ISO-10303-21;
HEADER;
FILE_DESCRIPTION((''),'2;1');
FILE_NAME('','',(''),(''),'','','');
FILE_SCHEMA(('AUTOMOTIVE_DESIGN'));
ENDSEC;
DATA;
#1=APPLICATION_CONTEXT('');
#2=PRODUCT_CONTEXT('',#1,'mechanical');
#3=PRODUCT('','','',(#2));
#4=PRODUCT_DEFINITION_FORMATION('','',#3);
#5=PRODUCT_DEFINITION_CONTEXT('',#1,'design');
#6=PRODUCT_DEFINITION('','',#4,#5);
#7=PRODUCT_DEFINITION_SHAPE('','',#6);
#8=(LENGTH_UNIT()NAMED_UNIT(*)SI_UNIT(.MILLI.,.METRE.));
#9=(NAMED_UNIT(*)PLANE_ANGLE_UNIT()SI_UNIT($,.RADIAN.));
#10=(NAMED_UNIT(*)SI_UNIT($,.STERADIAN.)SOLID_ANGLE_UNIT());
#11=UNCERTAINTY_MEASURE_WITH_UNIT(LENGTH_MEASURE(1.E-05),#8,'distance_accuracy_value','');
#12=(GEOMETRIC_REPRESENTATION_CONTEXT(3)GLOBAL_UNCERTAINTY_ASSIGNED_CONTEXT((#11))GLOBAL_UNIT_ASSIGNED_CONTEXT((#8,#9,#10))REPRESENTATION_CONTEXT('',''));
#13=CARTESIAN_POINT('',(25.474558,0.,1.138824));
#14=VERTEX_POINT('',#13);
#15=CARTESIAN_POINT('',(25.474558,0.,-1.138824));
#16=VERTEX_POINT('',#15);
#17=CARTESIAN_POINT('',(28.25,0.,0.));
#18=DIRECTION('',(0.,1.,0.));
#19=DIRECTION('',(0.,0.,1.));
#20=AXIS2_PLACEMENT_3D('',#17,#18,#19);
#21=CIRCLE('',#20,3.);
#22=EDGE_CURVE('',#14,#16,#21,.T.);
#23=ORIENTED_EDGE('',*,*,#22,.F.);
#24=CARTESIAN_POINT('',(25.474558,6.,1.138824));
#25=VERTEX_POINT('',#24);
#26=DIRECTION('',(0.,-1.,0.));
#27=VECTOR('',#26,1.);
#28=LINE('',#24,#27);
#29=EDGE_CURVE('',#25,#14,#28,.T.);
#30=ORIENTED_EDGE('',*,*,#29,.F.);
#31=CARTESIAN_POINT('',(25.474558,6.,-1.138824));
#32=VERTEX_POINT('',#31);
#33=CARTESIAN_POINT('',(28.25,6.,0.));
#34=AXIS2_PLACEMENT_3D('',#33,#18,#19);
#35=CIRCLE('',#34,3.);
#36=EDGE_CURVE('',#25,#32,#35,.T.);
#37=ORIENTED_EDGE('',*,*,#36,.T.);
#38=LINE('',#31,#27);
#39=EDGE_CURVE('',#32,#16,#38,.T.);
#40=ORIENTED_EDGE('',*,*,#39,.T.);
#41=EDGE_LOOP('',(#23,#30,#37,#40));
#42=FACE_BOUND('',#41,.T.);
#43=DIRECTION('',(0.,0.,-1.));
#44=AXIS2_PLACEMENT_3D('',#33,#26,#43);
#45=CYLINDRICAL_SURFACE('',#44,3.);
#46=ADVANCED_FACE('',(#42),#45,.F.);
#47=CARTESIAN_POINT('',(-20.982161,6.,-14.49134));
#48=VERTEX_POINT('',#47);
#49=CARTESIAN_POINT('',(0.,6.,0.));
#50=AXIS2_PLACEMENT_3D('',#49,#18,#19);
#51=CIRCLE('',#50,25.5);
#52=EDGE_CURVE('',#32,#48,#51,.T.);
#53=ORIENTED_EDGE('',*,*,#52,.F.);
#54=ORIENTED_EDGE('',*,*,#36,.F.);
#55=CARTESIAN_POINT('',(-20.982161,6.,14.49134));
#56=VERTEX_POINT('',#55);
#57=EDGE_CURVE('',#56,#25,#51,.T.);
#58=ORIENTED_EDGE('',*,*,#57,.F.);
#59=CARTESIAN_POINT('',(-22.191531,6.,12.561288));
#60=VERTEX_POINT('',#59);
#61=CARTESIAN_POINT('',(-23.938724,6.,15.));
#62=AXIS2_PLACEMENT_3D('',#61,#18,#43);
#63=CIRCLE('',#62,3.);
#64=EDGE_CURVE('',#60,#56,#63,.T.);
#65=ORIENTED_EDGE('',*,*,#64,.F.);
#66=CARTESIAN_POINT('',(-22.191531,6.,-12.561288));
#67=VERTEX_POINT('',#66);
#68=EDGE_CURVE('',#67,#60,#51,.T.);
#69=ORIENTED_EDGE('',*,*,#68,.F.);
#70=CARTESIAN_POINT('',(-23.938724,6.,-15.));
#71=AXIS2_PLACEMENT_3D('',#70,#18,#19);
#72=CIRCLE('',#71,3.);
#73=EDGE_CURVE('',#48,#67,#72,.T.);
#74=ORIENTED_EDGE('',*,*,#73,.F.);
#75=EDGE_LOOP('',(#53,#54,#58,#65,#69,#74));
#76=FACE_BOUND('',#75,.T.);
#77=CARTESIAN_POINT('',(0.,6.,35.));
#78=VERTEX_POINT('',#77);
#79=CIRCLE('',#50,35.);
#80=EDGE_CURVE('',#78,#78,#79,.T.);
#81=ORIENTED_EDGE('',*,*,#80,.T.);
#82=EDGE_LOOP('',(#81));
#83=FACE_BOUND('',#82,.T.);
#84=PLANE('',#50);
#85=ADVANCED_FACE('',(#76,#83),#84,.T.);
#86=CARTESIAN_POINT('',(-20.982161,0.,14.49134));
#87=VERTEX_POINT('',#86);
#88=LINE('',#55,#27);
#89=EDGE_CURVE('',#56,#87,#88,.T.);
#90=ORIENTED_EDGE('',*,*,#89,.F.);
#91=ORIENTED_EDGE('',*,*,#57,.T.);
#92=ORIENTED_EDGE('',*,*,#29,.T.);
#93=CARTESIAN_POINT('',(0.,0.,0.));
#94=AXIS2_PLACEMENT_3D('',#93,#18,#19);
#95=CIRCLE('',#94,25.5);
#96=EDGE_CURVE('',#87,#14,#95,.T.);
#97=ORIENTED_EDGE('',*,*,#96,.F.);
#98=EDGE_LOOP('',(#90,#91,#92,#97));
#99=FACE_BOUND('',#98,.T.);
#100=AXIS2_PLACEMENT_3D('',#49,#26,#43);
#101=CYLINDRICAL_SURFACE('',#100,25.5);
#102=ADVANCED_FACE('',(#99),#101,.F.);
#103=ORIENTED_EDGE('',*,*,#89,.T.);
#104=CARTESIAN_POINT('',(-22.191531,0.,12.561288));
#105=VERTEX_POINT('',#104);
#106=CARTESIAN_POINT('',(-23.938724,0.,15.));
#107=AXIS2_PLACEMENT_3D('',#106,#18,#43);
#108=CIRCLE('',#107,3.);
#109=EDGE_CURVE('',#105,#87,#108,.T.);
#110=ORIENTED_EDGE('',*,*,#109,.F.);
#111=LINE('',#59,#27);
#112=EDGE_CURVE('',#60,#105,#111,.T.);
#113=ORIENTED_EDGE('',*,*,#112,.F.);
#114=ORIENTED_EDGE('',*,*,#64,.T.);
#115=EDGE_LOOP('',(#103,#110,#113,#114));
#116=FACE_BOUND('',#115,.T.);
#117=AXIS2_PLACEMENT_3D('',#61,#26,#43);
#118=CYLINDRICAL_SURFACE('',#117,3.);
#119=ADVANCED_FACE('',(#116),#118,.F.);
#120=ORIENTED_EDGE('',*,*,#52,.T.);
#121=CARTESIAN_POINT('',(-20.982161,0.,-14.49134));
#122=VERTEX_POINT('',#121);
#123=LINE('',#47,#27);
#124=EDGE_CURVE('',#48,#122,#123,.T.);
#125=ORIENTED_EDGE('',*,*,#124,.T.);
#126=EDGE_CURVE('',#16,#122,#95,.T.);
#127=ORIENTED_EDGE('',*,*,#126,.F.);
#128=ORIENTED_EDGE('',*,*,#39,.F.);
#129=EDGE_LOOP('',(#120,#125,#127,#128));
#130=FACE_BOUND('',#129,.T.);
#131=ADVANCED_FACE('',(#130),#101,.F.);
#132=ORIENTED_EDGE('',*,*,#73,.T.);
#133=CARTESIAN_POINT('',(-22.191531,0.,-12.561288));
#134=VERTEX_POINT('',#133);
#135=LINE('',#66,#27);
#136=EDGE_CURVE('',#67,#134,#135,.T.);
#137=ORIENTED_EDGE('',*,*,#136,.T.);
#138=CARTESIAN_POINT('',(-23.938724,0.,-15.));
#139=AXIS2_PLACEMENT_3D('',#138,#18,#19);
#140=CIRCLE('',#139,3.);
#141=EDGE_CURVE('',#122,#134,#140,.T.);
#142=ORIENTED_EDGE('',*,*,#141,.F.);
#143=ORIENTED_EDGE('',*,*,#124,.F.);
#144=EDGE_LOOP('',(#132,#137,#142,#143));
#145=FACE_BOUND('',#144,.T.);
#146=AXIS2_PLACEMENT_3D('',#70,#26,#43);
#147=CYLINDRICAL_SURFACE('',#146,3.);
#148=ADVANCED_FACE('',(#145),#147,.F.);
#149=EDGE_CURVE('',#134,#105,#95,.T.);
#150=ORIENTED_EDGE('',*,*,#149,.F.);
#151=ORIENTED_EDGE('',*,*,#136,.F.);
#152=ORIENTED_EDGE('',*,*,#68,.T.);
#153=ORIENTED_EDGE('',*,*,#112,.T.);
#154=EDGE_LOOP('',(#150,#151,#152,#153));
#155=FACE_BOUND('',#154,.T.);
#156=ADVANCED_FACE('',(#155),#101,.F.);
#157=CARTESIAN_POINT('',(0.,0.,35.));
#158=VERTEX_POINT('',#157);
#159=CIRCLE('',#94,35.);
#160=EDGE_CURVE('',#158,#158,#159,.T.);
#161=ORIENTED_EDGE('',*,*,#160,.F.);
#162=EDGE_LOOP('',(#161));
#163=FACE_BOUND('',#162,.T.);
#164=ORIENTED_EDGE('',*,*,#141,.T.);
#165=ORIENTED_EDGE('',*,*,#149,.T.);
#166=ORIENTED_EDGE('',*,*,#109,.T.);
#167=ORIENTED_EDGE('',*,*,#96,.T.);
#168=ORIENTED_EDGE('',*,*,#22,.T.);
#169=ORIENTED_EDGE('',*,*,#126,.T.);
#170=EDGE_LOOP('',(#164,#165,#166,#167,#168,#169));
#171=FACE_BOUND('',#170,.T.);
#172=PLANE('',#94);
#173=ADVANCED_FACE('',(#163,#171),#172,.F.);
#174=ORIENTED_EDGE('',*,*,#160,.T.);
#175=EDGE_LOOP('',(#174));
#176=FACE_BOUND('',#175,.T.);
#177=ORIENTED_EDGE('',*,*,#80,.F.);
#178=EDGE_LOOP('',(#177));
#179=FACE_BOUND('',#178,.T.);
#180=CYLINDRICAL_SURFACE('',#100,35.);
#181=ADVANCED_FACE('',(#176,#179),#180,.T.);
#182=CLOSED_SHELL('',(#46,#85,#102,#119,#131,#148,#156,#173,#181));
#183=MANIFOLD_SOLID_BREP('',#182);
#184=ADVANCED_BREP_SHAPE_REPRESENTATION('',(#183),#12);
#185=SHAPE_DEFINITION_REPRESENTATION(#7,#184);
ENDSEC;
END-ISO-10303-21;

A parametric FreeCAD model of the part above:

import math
import FreeCAD as App
import Part
import Sketcher

V = App.Vector
Q = App.Units.Quantity

doc = App.newDocument("Part")
params = doc.addObject("Spreadsheet::Sheet", "Params")
for row, (alias, value) in enumerate([
    ("sketch1_diameter", "70 mm"),
    ("sketch1_radius", "3 mm"),
    ("sketch1_radius2", "25.5 mm"),
    ("pad1_length", "6 mm"),
], start=1):
    params.set(f"A{row}", alias)
    params.set(f"B{row}", "=" + value)
    params.setAlias(f"B{row}", alias)

body = doc.addObject("PartDesign::Body", "Body")

# Sketch on XZ plane
sketch1 = doc.addObject("Sketcher::SketchObject", "Sketch")
body.addObject(sketch1)
sketch1.AttachmentSupport = (doc.XZ_Plane, [""])
sketch1.MapMode = "FlatFace"
sketch1.addGeometry([
    Part.Circle(V(0, 0, 0), V(0, 0, 1), 35),  # 0
    Part.ArcOfCircle(Part.Circle(V(-23.938724, -15, 0), V(0, 0, 1), 3), math.radians(54.380644), math.radians(369.761857)),  # 1
    Part.ArcOfCircle(Part.Circle(V(0, 0, 0), V(0, 0, 1), 25.5), math.radians(-145.369083), math.radians(-2.559666)),  # 2
    Part.ArcOfCircle(Part.Circle(V(28.25, 0, 0), V(0, 0, 1), 3), math.radians(-157.690606), math.radians(157.690606)),  # 3
    Part.ArcOfCircle(Part.Circle(V(0, 0, 0), V(0, 0, 1), 25.5), math.radians(2.559666), math.radians(145.369083)),  # 4
    Part.ArcOfCircle(Part.Circle(V(-23.938724, 15, 0), V(0, 0, 1), 3), math.radians(-9.761857), math.radians(305.619356)),  # 5
    Part.ArcOfCircle(Part.Circle(V(0, 0, 0), V(0, 0, 1), 25.5), math.radians(150.488416), math.radians(209.511584)),  # 6
], False)
sketch1.addConstraint([
    Sketcher.Constraint("Coincident", 1, 2, 2, 1),
    Sketcher.Constraint("Coincident", 2, 2, 3, 1),
    Sketcher.Constraint("Coincident", 3, 2, 4, 1),
    Sketcher.Constraint("Coincident", 4, 2, 5, 1),
    Sketcher.Constraint("Coincident", 5, 2, 6, 1),
    Sketcher.Constraint("Coincident", 6, 2, 1, 1),
    Sketcher.Constraint("Coincident", 0, 3, -1, 1),
    Sketcher.Constraint("Coincident", 2, 3, -1, 1),
    Sketcher.Constraint("Coincident", 4, 3, -1, 1),
    Sketcher.Constraint("Coincident", 6, 3, -1, 1),
    Sketcher.Constraint("Equal", 1, 3),
    Sketcher.Constraint("Equal", 2, 4),
    Sketcher.Constraint("Equal", 3, 5),
    Sketcher.Constraint("Equal", 4, 6),
    Sketcher.Constraint("Symmetric", 1, 3, 5, 3, -1),
    Sketcher.Constraint("PointOnObject", 3, 3, -1),
    Sketcher.Constraint("Diameter", 0, Q("70 mm")),
    Sketcher.Constraint("Radius", 1, Q("3 mm")),
    Sketcher.Constraint("Radius", 2, Q("25.5 mm")),
    Sketcher.Constraint("DistanceY", 1, 3, -1, 1, Q("15 mm")),
    Sketcher.Constraint("DistanceX", -1, 1, 3, 3, Q("28.25 mm")),
    Sketcher.Constraint("DistanceX", 1, 2, -1, 1, Q("20.982161 mm")),
])
sketch1.setExpression("Constraints[16]", "Params.sketch1_diameter")
sketch1.setExpression("Constraints[17]", "Params.sketch1_radius")
sketch1.setExpression("Constraints[18]", "Params.sketch1_radius2")
pad1 = doc.addObject("PartDesign::Pad", "Pad")
body.addObject(pad1)
pad1.Profile = sketch1
pad1.setExpression("Length", "Params.pad1_length")
pad1.Reversed = True

doc.recompute()
